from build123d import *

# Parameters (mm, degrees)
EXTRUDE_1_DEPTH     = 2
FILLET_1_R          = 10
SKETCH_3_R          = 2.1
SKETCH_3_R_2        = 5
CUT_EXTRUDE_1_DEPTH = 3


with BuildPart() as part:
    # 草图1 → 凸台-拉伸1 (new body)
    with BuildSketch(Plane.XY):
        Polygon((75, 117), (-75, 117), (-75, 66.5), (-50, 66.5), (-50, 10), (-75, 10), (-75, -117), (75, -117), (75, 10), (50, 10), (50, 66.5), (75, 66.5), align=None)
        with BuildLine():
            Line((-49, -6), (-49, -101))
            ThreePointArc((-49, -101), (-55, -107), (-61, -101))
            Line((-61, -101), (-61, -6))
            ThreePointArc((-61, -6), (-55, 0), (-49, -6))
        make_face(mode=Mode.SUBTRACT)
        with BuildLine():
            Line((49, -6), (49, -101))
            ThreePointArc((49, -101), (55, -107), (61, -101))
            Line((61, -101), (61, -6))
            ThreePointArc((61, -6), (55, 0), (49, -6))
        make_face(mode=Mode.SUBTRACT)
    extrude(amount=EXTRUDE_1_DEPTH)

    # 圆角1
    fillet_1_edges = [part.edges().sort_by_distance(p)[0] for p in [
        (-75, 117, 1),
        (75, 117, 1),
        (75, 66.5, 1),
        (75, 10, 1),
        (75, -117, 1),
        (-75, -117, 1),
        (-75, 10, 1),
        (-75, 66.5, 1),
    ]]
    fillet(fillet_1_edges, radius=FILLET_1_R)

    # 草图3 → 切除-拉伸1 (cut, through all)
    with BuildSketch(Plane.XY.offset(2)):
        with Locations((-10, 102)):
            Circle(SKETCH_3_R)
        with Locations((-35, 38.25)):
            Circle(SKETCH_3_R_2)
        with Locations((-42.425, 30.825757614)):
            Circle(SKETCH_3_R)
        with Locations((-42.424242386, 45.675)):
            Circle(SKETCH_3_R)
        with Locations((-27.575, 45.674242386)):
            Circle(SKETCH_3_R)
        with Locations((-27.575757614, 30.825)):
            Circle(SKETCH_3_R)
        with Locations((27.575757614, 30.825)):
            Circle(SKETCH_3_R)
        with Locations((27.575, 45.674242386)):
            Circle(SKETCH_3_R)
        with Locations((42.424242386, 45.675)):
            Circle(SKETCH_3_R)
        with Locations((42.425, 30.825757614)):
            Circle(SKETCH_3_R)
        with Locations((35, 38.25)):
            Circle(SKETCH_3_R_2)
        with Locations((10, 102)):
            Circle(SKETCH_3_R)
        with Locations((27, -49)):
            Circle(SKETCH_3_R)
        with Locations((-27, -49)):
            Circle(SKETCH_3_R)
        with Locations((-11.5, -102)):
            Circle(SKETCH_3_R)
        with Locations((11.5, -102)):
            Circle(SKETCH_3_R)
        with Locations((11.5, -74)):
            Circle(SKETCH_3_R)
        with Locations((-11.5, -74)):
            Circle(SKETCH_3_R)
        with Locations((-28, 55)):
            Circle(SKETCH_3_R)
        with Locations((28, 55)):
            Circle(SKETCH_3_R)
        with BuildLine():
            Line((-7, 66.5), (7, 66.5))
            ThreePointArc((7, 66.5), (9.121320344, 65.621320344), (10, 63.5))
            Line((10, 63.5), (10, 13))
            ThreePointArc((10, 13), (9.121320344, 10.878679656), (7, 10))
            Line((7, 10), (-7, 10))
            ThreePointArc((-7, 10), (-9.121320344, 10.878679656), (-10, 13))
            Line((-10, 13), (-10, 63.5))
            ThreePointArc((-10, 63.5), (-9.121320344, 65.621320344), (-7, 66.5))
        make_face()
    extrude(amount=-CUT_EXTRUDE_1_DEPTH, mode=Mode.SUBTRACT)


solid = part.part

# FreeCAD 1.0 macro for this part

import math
import FreeCAD as App
import Part
import Sketcher

V = App.Vector
Q = App.Units.Quantity


def edges_at(feature, points):
    """Names of the edges that pass closest to the given points."""
    edges = feature.Shape.Edges
    near = lambda p: min(range(len(edges)), key=lambda i: edges[i].distToShape(Part.Vertex(*p))[0])
    return sorted({f"Edge{near(p) + 1}" for p in points})


def add_polygon(sketch, points):
    """Adds a closed chain of lines whose ends are joined by coincident constraints."""
    first, n = sketch.GeometryCount, len(points)
    for a, b in zip(points, points[1:] + points[:1]):
        sketch.addGeometry(Part.LineSegment(App.Vector(*a, 0), App.Vector(*b, 0)), False)
    for i in range(n):
        sketch.addConstraint(Sketcher.Constraint("Coincident", first + i, 2, first + (i + 1) % n, 1))

doc = App.newDocument("Part")
body = doc.addObject("PartDesign::Body", "Body")

sketch1 = body.newObject("Sketcher::SketchObject", "Sketch")
sketch1.AttachmentSupport = (doc.getObject("XY_Plane"), [""])
sketch1.MapMode = "FlatFace"
add_polygon(sketch1, [(75, 117), (-75, 117), (-75, 66), (-50, 66), (-50, 10), (-75, 10), (-75, -117), (75, -117), (75, 10), (50, 10), (50, 66), (75, 66)])
sketch1.addGeometry(Part.ArcOfCircle(Part.Circle(V(-55, -6, 0), V(0, 0, 1), 6), math.radians(0), math.radians(180)), False)
sketch1.addGeometry(Part.LineSegment(V(-49, -6, 0), V(-49, -101, 0)), False)
sketch1.addGeometry(Part.ArcOfCircle(Part.Circle(V(-55, -101, 0), V(0, 0, 1), 6), math.radians(180), math.radians(360)), False)
sketch1.addGeometry(Part.LineSegment(V(-61, -101, 0), V(-61, -6, 0)), False)
sketch1.addGeometry(Part.LineSegment(V(49, -101, 0), V(49, -6, 0)), False)
sketch1.addGeometry(Part.ArcOfCircle(Part.Circle(V(55, -6, 0), V(0, 0, 1), 6), math.radians(0), math.radians(180)), False)
sketch1.addGeometry(Part.LineSegment(V(61, -6, 0), V(61, -101, 0)), False)
sketch1.addGeometry(Part.ArcOfCircle(Part.Circle(V(55, -101, 0), V(0, 0, 1), 6), math.radians(180), math.radians(360)), False)
sketch1.addConstraint([
    Sketcher.Constraint("Tangent", 12, 1, 13, 1),
    Sketcher.Constraint("Tangent", 13, 2, 14, 2),
    Sketcher.Constraint("Tangent", 14, 1, 15, 1),
    Sketcher.Constraint("Tangent", 15, 2, 12, 2),
    Sketcher.Constraint("Tangent", 16, 2, 17, 2),
    Sketcher.Constraint("Tangent", 17, 1, 18, 1),
    Sketcher.Constraint("Tangent", 18, 2, 19, 2),
    Sketcher.Constraint("Tangent", 19, 1, 16, 1),
    Sketcher.Constraint("Horizontal", 0),
    Sketcher.Constraint("Vertical", 1),
    Sketcher.Constraint("Horizontal", 2),
    Sketcher.Constraint("Vertical", 3),
    Sketcher.Constraint("Horizontal", 4),
    Sketcher.Constraint("Vertical", 5),
    Sketcher.Constraint("Horizontal", 6),
    Sketcher.Constraint("Vertical", 7),
    Sketcher.Constraint("Horizontal", 8),
    Sketcher.Constraint("Vertical", 9),
    Sketcher.Constraint("Horizontal", 10),
    Sketcher.Constraint("Vertical", 11),
    Sketcher.Constraint("Vertical", 13),
    Sketcher.Constraint("Vertical", 15),
    Sketcher.Constraint("Vertical", 16),
    Sketcher.Constraint("Vertical", 18),
    Sketcher.Constraint("Equal", 14, 17),
    Sketcher.Constraint("Symmetric", 0, 2, 6, 2, -1, 1),
    Sketcher.Constraint("Symmetric", 12, 3, 17, 3, -2),
    Sketcher.Constraint("Symmetric", 4, 2, 7, 2, -2),
    Sketcher.Constraint("Symmetric", 2, 2, 9, 2, -2),
    Sketcher.Constraint("Horizontal", 14, 3, 19, 3),
    Sketcher.Constraint("Vertical", 7, 2, 10, 2),
    Sketcher.Constraint("Radius", 12, Q("6 mm")),
    Sketcher.Constraint("DistanceX", 0, 2, 0, 1, Q("150 mm")),
    Sketcher.Constraint("DistanceX", 2, 1, 2, 2, Q("25 mm")),
    Sketcher.Constraint("DistanceY", 5, 2, 5, 1, Q("127 mm")),
    Sketcher.Constraint("DistanceY", 13, 2, 13, 1, Q("95 mm")),
    Sketcher.Constraint("DistanceY", 1, 2, 1, 1, Q("50.5 mm")),
    Sketcher.Constraint("DistanceY", 3, 2, 3, 1, Q("56.5 mm")),
    Sketcher.Constraint("DistanceX", 12, 3, -1, 1, Q("55 mm")),
    Sketcher.Constraint("DistanceY", 12, 3, -1, 1, Q("6 mm")),
])
pad1 = body.newObject("PartDesign::Pad", "Pad")
pad1.Profile = sketch1
pad1.Length = 2
doc.recompute()

fillet = body.newObject("PartDesign::Fillet", "Fillet")
fillet.Base = (pad1, edges_at(pad1, [
    (-75, 117, 1),
    (75, 117, 1),
    (75, 66.5, 1),
    (75, 10, 1),
    (75, -117, 1),
    (-75, -117, 1),
    (-75, 10, 1),
    (-75, 66.5, 1),
]))
fillet.Radius = 10

sketch2 = body.newObject("Sketcher::SketchObject", "Sketch001")
sketch2.AttachmentSupport = (doc.getObject("XY_Plane"), [""])
sketch2.MapMode = "FlatFace"
sketch2.AttachmentOffset = App.Placement(V(0, 0, 2), App.Rotation())
sketch2.addGeometry([
    Part.Circle(V(-10, 102, 0), V(0, 0, 1), 2.1),
    Part.Circle(V(-35, 38.2, 0), V(0, 0, 1), 5),
    Part.Circle(V(-42.4, 30.8, 0), V(0, 0, 1), 2.1),
    Part.Circle(V(-42.4, 45.7, 0), V(0, 0, 1), 2.1),
    Part.Circle(V(-27.6, 45.7, 0), V(0, 0, 1), 2.1),
    Part.Circle(V(-27.6, 30.8, 0), V(0, 0, 1), 2.1),
    Part.Circle(V(27.6, 30.8, 0), V(0, 0, 1), 2.1),
    Part.Circle(V(27.6, 45.7, 0), V(0, 0, 1), 2.1),
    Part.Circle(V(42.4, 45.7, 0), V(0, 0, 1), 2.1),
    Part.Circle(V(42.4, 30.8, 0), V(0, 0, 1), 2.1),
    Part.Circle(V(35, 38.2, 0), V(0, 0, 1), 5),
    Part.Circle(V(10, 102, 0), V(0, 0, 1), 2.1),
    Part.Circle(V(27, -49, 0), V(0, 0, 1), 2.1),
    Part.Circle(V(-27, -49, 0), V(0, 0, 1), 2.1),
    Part.Circle(V(-11.5, -102, 0), V(0, 0, 1), 2.1),
    Part.Circle(V(11.5, -102, 0), V(0, 0, 1), 2.1),
    Part.Circle(V(11.5, -74, 0), V(0, 0, 1), 2.1),
    Part.Circle(V(-11.5, -74, 0), V(0, 0, 1), 2.1),
    Part.Circle(V(-28, 55, 0), V(0, 0, 1), 2.1),
    Part.Circle(V(28, 55, 0), V(0, 0, 1), 2.1),
    Part.LineSegment(V(7, 66.5, 0), V(-7, 66.5, 0)),
    Part.ArcOfCircle(Part.Circle(V(-7, 63.5, 0), V(0, 0, 1), 3), math.radians(90), math.radians(180)),
    Part.LineSegment(V(-10, 63.5, 0), V(-10, 13, 0)),
    Part.ArcOfCircle(Part.Circle(V(-7, 13, 0), V(0, 0, 1), 3), math.radians(180), math.radians(270)),
    Part.LineSegment(V(-7, 10, 0), V(7, 10, 0)),
    Part.ArcOfCircle(Part.Circle(V(7, 13, 0), V(0, 0, 1), 3), math.radians(-90), math.radians(0)),
    Part.LineSegment(V(10, 13, 0), V(10, 63.5, 0)),
    Part.ArcOfCircle(Part.Circle(V(7, 63.5, 0), V(0, 0, 1), 3), math.radians(0), math.radians(90)),
], False)
sketch2.addConstraint([
    Sketcher.Constraint("Tangent", 20, 2, 21, 1),
    Sketcher.Constraint("Tangent", 21, 2, 22, 1),
    Sketcher.Constraint("Tangent", 22, 2, 23, 1),
    Sketcher.Constraint("Tangent", 23, 2, 24, 1),
    Sketcher.Constraint("Tangent", 24, 2, 25, 1),
    Sketcher.Constraint("Tangent", 25, 2, 26, 1),
    Sketcher.Constraint("Tangent", 26, 2, 27, 1),
    Sketcher.Constraint("Tangent", 27, 2, 20, 1),
    Sketcher.Constraint("Horizontal", 20),
    Sketcher.Constraint("Vertical", 22),
    Sketcher.Constraint("Horizontal", 24),
    Sketcher.Constraint("Vertical", 26),
    Sketcher.Constraint("Equal", 0, 2),
    Sketcher.Constraint("Equal", 2, 3),
    Sketcher.Constraint("Equal", 3, 4),
    Sketcher.Constraint("Equal", 4, 5),
    Sketcher.Constraint("Equal", 5, 6),
    Sketcher.Constraint("Equal", 6, 7),
    Sketcher.Constraint("Equal", 7, 8),
    Sketcher.Constraint("Equal", 8, 9),
    Sketcher.Constraint("Equal", 1, 10),
    Sketcher.Constraint("Equal", 9, 11),
    Sketcher.Constraint("Equal", 11, 12),
    Sketcher.Constraint("Equal", 12, 13),
    Sketcher.Constraint("Equal", 13, 14),
    Sketcher.Constraint("Equal", 14, 15),
    Sketcher.Constraint("Equal", 15, 16),
    Sketcher.Constraint("Equal", 16, 17),
    Sketcher.Constraint("Equal", 17, 18),
    Sketcher.Constraint("Equal", 18, 19),
    Sketcher.Constraint("Equal", 21, 23),
    Sketcher.Constraint("Equal", 23, 25),
    Sketcher.Constraint("Equal", 25, 27),
    Sketcher.Constraint("Symmetric", 5, 3, 6, 3, -2),
    Sketcher.Constraint("Symmetric", 4, 3, 7, 3, -2),
    Sketcher.Constraint("Symmetric", 3, 3, 8, 3, -2),
    Sketcher.Constraint("Symmetric", 2, 3, 9, 3, -2),
    Sketcher.Constraint("Symmetric", 1, 3, 10, 3, -2),
    Sketcher.Constraint("Symmetric", 0, 3, 11, 3, -2),
    Sketcher.Constraint("Symmetric", 12, 3, 13, 3, -2),
    Sketcher.Constraint("Symmetric", 14, 3, 15, 3, -2),
    Sketcher.Constraint("Symmetric", 16, 3, 17, 3, -2),
    Sketcher.Constraint("Symmetric", 18, 3, 19, 3, -2),
    Sketcher.Constraint("Vertical", 15, 3, 16, 3),
    Sketcher.Constraint("Vertical", 0, 3, 21, 2),
    Sketcher.Constraint("Vertical", 11, 3, 25, 2),
    Sketcher.Constraint("Diameter", 1, Q("10 mm")),
    Sketcher.Constraint("Radius", 21, Q("3 mm")),
    Sketcher.Constraint("Diameter", 0, Q("4.2 mm")),
    Sketcher.Constraint("DistanceX", 20, 2, 20, 1, Q("14 mm")),
    Sketcher.Constraint("DistanceY", 22, 2, 22, 1, Q("50.5 mm")),
    Sketcher.Constraint("DistanceY", -1, 1, 0, 3, Q("102 mm")),
    Sketcher.Constraint("DistanceX", 1, 3, -1, 1, Q("35 mm")),
    Sketcher.Constraint("DistanceX", -1, 1, 12, 3, Q("27 mm")),
    Sketcher.Constraint("DistanceY", 12, 3, -1, 1, Q("49 mm")),
    Sketcher.Constraint("DistanceY", 14, 3, -1, 1, Q("102 mm")),
    Sketcher.Constraint("DistanceY", 16, 3, -1, 1, Q("74 mm")),
    Sketcher.Constraint("DistanceX", 18, 3, -1, 1, Q("28 mm")),
    Sketcher.Constraint("DistanceY", -1, 1, 18, 3, Q("55 mm")),
    Sketcher.Constraint("DistanceY", -1, 1, 23, 3, Q("13 mm")),
    Sketcher.Constraint("DistanceX", 3, 3, 6, 3, Q("70 mm")),
    Sketcher.Constraint("DistanceX", 4, 3, 9, 3, Q("70 mm")),
    Sketcher.Constraint("DistanceX", 14, 3, 15, 3, Q("23 mm")),
    Sketcher.Constraint("DistanceY", -1, 1, 1, 3, Q("38.25 mm")),
    Sketcher.Constraint("DistanceX", 2, 3, 4, 3, Q("14.85 mm")),
    Sketcher.Constraint("DistanceY", 5, 3, 3, 3, Q("14.85 mm")),
    Sketcher.Constraint("DistanceY", -1, 1, 3, 3, Q("45.675 mm")),
    Sketcher.Constraint("DistanceY", -1, 1, 2, 3, Q("30.825758 mm")),
    Sketcher.Constraint("DistanceX", 3, 3, -1, 1, Q("42.424242 mm")),
    Sketcher.Constraint("DistanceY", -1, 1, 4, 3, Q("45.674242 mm")),
])
pocket1 = body.newObject("PartDesign::Pocket", "Pocket")
pocket1.Profile = sketch2
pocket1.Type = "ThroughAll"

doc.recompute()
